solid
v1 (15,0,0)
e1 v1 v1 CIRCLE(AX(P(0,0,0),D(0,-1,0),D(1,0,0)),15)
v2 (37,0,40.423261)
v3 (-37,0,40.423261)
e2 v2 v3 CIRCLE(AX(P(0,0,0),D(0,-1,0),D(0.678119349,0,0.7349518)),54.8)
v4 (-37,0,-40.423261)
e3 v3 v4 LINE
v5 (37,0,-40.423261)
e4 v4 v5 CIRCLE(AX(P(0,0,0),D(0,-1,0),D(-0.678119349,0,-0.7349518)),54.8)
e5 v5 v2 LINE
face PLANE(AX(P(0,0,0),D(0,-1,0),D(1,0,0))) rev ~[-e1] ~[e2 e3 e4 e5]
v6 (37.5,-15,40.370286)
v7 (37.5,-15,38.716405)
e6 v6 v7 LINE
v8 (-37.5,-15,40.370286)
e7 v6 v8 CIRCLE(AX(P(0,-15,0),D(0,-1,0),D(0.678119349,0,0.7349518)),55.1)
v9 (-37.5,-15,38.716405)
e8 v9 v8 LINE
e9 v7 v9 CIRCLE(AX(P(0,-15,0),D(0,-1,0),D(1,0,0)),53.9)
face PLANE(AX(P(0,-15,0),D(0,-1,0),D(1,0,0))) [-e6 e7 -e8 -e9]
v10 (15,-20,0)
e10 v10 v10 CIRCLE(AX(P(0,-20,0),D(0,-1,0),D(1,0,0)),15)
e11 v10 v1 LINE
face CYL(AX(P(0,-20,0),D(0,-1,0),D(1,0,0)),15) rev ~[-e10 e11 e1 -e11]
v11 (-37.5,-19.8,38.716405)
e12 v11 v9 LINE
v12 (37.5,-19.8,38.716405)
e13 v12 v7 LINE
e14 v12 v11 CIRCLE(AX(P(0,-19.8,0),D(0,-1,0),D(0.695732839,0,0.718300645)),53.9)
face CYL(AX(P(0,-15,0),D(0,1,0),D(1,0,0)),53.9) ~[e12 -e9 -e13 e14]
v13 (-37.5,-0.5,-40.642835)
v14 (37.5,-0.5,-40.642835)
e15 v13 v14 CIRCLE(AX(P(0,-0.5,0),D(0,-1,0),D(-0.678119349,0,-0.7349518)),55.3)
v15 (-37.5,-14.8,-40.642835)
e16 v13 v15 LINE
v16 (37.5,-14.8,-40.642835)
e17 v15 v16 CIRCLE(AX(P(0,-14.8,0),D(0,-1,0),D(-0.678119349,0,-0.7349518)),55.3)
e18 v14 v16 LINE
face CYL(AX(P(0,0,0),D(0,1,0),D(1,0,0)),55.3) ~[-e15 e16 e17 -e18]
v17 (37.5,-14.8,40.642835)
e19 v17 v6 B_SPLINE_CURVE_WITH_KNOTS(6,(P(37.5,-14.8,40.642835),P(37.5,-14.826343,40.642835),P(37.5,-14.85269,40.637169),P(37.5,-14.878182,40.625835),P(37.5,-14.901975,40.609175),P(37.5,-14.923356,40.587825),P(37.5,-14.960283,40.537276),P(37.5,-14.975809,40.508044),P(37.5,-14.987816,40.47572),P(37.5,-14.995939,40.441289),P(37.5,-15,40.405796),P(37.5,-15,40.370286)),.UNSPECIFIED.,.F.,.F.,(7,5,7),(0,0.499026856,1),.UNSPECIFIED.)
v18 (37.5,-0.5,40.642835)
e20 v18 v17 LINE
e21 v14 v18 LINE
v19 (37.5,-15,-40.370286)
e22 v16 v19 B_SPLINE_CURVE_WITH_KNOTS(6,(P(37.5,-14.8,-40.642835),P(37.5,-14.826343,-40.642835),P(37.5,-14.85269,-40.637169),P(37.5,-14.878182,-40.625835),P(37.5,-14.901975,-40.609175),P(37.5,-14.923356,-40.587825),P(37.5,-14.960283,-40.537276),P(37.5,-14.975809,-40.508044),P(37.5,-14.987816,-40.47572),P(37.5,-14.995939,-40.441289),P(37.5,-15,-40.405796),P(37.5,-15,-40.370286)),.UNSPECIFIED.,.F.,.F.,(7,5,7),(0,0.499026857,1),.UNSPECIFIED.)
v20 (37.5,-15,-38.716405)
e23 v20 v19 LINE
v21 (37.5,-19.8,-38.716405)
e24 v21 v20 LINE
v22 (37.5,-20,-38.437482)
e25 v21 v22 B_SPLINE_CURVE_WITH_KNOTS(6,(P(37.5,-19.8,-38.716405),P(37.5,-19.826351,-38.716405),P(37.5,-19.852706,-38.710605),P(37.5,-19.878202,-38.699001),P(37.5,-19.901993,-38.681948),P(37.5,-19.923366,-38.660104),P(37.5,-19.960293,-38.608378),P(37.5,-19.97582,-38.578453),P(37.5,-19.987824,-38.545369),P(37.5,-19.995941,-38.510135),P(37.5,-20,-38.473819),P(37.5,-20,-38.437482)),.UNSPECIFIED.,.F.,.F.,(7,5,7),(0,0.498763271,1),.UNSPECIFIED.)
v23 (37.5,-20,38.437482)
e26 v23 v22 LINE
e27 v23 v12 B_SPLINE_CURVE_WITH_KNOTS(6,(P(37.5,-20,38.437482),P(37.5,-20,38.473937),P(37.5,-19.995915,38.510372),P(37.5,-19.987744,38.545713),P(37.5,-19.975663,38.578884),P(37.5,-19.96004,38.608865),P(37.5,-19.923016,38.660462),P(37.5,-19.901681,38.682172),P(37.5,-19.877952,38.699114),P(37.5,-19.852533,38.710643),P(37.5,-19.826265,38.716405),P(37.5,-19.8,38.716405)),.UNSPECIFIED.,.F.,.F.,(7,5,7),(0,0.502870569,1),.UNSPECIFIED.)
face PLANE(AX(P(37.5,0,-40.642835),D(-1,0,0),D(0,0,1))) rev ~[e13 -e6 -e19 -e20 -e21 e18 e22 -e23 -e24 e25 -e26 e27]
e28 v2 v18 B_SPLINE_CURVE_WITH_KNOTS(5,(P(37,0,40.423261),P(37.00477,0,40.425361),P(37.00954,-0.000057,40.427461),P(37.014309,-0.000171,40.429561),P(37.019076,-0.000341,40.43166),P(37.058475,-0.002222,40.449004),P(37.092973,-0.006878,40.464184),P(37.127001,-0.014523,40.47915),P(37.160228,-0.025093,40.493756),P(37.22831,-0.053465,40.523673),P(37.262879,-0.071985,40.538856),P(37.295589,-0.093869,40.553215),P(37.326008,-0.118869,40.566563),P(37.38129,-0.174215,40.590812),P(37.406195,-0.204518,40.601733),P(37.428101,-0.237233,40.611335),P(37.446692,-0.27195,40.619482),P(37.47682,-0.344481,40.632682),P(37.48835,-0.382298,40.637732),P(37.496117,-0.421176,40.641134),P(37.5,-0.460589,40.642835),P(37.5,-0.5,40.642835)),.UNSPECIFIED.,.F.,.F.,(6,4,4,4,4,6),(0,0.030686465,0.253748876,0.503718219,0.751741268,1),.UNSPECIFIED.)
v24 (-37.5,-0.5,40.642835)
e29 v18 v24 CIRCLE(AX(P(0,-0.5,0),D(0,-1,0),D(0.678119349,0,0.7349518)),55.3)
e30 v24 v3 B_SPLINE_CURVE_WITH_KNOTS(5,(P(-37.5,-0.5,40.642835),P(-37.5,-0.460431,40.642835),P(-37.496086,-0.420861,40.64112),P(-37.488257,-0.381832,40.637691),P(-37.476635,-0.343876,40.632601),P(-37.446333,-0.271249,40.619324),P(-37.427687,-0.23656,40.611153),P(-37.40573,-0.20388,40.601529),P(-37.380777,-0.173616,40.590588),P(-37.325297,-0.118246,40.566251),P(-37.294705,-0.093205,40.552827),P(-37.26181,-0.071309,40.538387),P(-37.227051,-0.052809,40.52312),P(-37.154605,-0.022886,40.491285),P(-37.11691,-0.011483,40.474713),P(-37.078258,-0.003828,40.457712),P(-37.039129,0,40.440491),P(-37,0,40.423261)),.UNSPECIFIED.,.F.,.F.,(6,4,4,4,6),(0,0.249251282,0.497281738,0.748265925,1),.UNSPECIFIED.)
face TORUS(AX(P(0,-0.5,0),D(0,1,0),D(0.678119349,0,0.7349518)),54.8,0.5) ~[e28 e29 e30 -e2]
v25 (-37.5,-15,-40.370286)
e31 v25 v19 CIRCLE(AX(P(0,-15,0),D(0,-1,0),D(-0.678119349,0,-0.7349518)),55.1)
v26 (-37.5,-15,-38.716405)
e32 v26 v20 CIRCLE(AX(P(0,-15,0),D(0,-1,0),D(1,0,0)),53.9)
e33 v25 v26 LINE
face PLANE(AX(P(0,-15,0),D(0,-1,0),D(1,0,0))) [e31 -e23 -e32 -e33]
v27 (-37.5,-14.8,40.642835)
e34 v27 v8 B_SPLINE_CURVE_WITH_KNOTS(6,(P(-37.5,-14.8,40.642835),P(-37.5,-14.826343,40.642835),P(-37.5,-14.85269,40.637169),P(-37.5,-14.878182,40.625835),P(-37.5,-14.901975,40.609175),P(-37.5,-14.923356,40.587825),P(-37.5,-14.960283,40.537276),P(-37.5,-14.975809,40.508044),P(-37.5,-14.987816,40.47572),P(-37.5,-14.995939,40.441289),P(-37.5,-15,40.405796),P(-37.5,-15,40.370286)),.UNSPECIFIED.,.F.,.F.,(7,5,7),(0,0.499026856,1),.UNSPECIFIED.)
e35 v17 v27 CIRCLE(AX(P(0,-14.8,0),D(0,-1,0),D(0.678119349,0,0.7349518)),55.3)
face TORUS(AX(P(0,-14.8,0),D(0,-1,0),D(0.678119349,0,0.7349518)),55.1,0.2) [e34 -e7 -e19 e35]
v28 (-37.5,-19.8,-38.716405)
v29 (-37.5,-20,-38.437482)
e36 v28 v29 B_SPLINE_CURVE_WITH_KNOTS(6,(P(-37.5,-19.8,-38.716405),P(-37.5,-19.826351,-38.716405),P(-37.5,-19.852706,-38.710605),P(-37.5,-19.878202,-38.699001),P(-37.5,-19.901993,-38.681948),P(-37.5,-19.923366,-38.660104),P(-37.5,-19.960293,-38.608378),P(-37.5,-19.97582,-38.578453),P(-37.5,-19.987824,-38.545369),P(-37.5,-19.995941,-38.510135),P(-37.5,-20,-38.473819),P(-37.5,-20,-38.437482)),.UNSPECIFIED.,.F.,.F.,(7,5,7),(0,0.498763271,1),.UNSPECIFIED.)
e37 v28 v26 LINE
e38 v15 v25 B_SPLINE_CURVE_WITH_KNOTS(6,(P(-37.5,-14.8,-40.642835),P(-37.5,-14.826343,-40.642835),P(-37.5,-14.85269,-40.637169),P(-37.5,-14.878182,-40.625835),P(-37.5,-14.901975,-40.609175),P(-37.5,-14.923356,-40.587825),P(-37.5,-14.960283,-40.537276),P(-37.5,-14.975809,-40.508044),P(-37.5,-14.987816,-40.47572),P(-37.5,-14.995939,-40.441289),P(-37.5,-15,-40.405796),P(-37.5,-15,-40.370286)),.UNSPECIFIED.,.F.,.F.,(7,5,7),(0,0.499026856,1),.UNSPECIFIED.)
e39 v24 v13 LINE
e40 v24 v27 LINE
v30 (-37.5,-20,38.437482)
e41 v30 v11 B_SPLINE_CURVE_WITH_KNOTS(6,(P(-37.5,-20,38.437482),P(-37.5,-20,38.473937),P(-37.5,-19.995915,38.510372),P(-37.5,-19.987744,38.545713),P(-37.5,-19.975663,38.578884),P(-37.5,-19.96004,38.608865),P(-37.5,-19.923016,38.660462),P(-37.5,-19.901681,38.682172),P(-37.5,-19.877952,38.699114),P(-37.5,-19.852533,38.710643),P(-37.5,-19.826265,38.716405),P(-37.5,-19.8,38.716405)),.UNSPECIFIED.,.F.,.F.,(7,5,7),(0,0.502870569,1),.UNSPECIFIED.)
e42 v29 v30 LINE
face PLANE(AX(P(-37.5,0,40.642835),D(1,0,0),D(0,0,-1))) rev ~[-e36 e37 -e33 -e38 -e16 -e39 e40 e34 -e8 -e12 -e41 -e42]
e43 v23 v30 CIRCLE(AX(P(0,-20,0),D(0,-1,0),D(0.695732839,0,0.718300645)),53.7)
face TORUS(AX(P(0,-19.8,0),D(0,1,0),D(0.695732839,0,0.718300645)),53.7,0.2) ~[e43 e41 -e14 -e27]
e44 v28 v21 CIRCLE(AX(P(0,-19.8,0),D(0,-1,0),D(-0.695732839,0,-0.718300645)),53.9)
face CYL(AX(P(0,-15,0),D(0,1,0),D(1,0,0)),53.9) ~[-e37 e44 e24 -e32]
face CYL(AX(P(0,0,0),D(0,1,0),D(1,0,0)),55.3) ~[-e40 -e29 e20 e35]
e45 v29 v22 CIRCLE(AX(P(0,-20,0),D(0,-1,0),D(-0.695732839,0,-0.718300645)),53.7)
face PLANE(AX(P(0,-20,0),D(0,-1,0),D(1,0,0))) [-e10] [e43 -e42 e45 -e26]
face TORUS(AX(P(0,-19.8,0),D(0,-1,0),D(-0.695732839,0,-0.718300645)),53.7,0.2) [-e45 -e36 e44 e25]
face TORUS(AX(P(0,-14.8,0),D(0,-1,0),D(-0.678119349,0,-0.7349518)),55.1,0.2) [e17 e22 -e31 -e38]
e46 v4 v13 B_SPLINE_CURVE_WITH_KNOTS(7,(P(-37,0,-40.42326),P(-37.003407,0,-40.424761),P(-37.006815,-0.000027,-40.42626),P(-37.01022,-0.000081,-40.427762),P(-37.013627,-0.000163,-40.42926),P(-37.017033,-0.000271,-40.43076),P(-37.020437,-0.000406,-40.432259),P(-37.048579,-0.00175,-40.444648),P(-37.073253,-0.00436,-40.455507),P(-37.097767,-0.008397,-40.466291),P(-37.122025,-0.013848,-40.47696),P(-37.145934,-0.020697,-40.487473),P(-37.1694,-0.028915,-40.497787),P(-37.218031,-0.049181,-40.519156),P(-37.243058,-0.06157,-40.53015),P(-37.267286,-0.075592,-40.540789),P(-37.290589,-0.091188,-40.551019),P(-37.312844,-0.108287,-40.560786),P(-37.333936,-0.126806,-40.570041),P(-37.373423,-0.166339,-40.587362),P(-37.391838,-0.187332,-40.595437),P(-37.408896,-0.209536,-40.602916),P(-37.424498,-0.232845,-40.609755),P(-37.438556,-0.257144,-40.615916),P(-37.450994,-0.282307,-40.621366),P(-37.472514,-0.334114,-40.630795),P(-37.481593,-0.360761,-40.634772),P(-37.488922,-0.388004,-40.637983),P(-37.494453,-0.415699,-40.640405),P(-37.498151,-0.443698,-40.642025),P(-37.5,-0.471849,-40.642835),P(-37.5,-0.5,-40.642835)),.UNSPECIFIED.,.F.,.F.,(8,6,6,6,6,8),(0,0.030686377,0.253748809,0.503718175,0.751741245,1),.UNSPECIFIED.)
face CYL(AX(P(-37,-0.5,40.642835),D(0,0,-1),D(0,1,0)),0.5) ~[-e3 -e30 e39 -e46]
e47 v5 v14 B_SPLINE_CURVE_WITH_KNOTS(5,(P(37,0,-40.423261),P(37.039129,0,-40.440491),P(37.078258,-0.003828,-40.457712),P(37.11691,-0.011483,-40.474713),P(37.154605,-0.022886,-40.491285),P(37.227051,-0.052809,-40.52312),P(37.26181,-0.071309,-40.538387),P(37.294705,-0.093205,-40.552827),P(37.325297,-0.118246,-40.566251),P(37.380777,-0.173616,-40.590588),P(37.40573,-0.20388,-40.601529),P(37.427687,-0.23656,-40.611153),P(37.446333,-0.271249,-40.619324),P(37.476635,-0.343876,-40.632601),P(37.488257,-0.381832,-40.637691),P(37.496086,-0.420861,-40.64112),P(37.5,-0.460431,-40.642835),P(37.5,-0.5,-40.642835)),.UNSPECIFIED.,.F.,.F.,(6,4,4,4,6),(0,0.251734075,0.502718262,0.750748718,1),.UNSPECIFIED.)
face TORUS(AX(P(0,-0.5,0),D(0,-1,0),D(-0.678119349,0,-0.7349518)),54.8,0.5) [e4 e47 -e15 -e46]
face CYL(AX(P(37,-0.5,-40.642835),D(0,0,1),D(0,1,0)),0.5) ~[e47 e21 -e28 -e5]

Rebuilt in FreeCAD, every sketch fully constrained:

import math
import FreeCAD as App
import Part
import Sketcher


def edges_at(feature, points):
    """Names of the edges that pass closest to the given points."""
    edges = feature.Shape.Edges
    near = lambda p: min(range(len(edges)), key=lambda i: edges[i].distToShape(Part.Vertex(*p))[0])
    return sorted({f"Edge{near(p) + 1}" for p in points})

doc = App.newDocument("Part")
params = doc.addObject("Spreadsheet::Sheet", "Params")
for row, (alias, value) in enumerate([
    ("sketch1_diameter", "110.6 mm"),
    ("pad1_length", "15 mm"),
    ("sketch2_diameter", "107.8 mm"),
    ("pad2_length", "5 mm"),
    ("sketch3_diameter", "30 mm"),
    ("pocket1_length", "25 mm"),
    ("sketch4_radius", "55.3 mm"),
    ("pocket2_length", "25 mm"),
    ("fillet_radius", "0.5 mm"),
    ("fillet2_radius", "0.2 mm"),
], start=1):
    params.set(f"A{row}", alias)
    params.set(f"B{row}", "=" + value)
    params.setAlias(f"B{row}", alias)

body = doc.addObject("PartDesign::Body", "Body")

sketch1 = body.newObject("Sketcher::SketchObject", "Sketch")
sketch1.AttachmentSupport = (doc.getObject("XZ_Plane"), [""])
sketch1.MapMode = "FlatFace"
sketch1.addGeometry(Part.Circle(App.Vector(0, 0, 0), App.Vector(0, 0, 1), 55), False)
sketch1.addConstraint([
    Sketcher.Constraint("Coincident", 0, 3, -1, 1),
    Sketcher.Constraint("Diameter", 0, 110.6),
])
sketch1.setExpression("Constraints[1]", "Params.sketch1_diameter")
pad1 = body.newObject("PartDesign::Pad", "Pad")
pad1.Profile = sketch1
pad1.setExpression("Length", "Params.pad1_length")

sketch2 = body.newObject("Sketcher::SketchObject", "Sketch001")
sketch2.AttachmentSupport = (doc.getObject("XZ_Plane"), [""])
sketch2.MapMode = "FlatFace"
sketch2.AttachmentOffset = App.Placement(App.Vector(0, 0, 15), App.Rotation())
sketch2.addGeometry(Part.Circle(App.Vector(0, 0, 0), App.Vector(0, 0, 1), 54), False)
sketch2.addConstraint([
    Sketcher.Constraint("Coincident", 0, 3, -1, 1),
    Sketcher.Constraint("Diameter", 0, 107.8),
])
sketch2.setExpression("Constraints[1]", "Params.sketch2_diameter")
pad2 = body.newObject("PartDesign::Pad", "Pad001")
pad2.Profile = sketch2
pad2.setExpression("Length", "Params.pad2_length")

sketch3 = body.newObject("Sketcher::SketchObject", "Sketch002")
sketch3.AttachmentSupport = (doc.getObject("XZ_Plane"), [""])
sketch3.MapMode = "FlatFace"
sketch3.AttachmentOffset = App.Placement(App.Vector(0, 0, 20), App.Rotation())
sketch3.addGeometry(Part.Circle(App.Vector(0, 0, 0), App.Vector(0, 0, 1), 15), False)
sketch3.addConstraint([
    Sketcher.Constraint("Coincident", 0, 3, -1, 1),
    Sketcher.Constraint("Diameter", 0, 30.0),
])
sketch3.setExpression("Constraints[1]", "Params.sketch3_diameter")
pocket1 = body.newObject("PartDesign::Pocket", "Pocket")
pocket1.Profile = sketch3
pocket1.setExpression("Length", "Params.pocket1_length")

sketch4 = body.newObject("Sketcher::SketchObject", "Sketch003")
sketch4.AttachmentSupport = (doc.getObject("XZ_Plane"), [""])
sketch4.MapMode = "FlatFace"
sketch4.addGeometry([
    Part.LineSegment(App.Vector(-38, 41, 0), App.Vector(-38, -41, 0)),
    Part.ArcOfCircle(Part.Circle(App.Vector(0, 0, 0), App.Vector(0, 0, 1), 55), math.radians(133), math.radians(227)),
    Part.ArcOfCircle(Part.Circle(App.Vector(0, 0, 0), App.Vector(0, 0, 1), 55), math.radians(-47), math.radians(47)),
    Part.LineSegment(App.Vector(38, -41, 0), App.Vector(38, 41, 0)),
], False)
sketch4.addConstraint([
    Sketcher.Constraint("Coincident", 0, 1, 1, 1),
    Sketcher.Constraint("Coincident", 1, 2, 0, 2),
    Sketcher.Constraint("Coincident", 2, 1, 3, 1),
    Sketcher.Constraint("Coincident", 3, 2, 2, 2),
    Sketcher.Constraint("Vertical", 0),
    Sketcher.Constraint("Vertical", 3),
    Sketcher.Constraint("Coincident", 1, 3, -1, 1),
    Sketcher.Constraint("Coincident", 2, 3, -1, 1),
    Sketcher.Constraint("Equal", 1, 2),
    Sketcher.Constraint("Horizontal", 1, 2, 2, 1),
    Sketcher.Constraint("Radius", 1, 55.3),
    Sketcher.Constraint("DistanceX", 1, 2, 2, 1, 75.0),
])
sketch4.setExpression("Constraints[10]", "Params.sketch4_radius")
pocket2 = body.newObject("PartDesign::Pocket", "Pocket001")
pocket2.Profile = sketch4
pocket2.setExpression("Length", "Params.pocket2_length")
pocket2.Reversed = True
doc.recompute()

fillet = body.newObject("PartDesign::Fillet", "Fillet")
fillet.Base = (pocket2, edges_at(pocket2, [
    (37.5, 0, 0),
    (0, 0, 55.3),
    (0, 0, -55.3),
    (-37.5, 0, 0),
]))
fillet.setExpression("Radius", "Params.fillet_radius")
doc.recompute()

fillet2 = body.newObject("PartDesign::Fillet", "Fillet001")
fillet2.Base = (fillet, edges_at(fillet, [
    (0, -20, -53.9),
    (0, -20, 53.9),
    (0, -15, 55.3),
    (0, -15, -55.3),
]))
fillet2.setExpression("Radius", "Params.fillet2_radius")

doc.recompute()
